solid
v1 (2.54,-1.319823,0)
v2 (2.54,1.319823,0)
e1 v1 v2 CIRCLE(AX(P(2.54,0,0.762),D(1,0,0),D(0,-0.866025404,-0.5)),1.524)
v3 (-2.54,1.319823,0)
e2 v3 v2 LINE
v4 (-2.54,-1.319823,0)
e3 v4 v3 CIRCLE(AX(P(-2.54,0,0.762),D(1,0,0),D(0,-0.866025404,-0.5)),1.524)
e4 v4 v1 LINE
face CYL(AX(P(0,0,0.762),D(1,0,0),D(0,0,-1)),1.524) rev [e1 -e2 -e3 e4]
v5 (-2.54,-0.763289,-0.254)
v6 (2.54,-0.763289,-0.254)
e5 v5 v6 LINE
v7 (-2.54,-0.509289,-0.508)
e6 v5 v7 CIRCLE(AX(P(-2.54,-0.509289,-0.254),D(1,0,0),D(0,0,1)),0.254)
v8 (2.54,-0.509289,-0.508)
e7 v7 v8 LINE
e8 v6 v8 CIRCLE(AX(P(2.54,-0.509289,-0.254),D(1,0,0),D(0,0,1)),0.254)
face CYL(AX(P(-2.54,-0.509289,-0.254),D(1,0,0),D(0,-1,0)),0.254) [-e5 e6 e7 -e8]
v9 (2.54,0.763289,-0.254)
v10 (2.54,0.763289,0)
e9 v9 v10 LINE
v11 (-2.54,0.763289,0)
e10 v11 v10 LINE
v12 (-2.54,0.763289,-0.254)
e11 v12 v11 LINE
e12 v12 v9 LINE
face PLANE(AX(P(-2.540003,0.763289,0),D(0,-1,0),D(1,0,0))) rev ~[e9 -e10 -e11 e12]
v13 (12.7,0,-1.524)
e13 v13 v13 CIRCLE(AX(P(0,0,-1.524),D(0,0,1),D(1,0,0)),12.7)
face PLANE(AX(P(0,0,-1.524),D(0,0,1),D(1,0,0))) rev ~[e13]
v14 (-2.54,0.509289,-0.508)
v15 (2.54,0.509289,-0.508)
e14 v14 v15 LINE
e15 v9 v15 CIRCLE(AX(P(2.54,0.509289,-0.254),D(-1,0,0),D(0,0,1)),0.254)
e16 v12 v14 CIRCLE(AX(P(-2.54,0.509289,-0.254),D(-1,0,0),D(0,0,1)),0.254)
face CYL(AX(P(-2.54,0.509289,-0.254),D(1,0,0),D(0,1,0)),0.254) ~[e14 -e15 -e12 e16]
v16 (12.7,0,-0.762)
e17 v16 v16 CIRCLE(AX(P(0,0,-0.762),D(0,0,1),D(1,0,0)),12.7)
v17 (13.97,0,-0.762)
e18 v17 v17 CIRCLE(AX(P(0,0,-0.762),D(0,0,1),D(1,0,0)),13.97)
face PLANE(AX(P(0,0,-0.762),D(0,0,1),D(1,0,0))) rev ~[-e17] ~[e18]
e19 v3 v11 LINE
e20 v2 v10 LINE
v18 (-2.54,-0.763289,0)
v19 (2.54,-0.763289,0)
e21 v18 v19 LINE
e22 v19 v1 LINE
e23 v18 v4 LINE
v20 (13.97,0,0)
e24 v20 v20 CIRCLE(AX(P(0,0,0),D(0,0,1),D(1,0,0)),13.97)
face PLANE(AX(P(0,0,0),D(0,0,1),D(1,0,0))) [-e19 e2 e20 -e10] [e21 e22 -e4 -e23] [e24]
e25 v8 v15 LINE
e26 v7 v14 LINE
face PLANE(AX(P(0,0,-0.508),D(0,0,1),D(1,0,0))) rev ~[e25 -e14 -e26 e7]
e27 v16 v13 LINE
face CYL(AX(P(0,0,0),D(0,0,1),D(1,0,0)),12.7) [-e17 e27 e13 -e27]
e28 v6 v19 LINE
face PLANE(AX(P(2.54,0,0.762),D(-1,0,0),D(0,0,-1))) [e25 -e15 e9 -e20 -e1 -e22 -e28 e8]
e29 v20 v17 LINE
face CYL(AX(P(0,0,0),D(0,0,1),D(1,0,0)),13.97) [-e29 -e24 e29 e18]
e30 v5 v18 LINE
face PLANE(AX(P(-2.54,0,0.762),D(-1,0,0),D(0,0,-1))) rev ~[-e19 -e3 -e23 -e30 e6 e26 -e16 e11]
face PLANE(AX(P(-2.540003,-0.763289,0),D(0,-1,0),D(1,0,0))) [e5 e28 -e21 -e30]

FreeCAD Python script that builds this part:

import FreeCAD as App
import Part
import Sketcher
Q = App.Units.Quantity


def edges_at(feature, points):
    """Names of the edges that pass closest to the given points."""
    edges = feature.Shape.Edges
    near = lambda p: min(range(len(edges)), key=lambda i: edges[i].distToShape(Part.Vertex(*p))[0])
    return sorted({f"Edge{near(p) + 1}" for p in points})

doc = App.newDocument("Part")
body = doc.addObject("PartDesign::Body", "Body")

sketch1 = body.newObject("Sketcher::SketchObject", "Sketch")
sketch1.AttachmentSupport = (doc.getObject("XY_Plane"), [""])
sketch1.MapMode = "FlatFace"
sketch1.addGeometry(Part.Circle(App.Vector(0, 0, 0), App.Vector(0, 0, 1), 12.7), False)
sketch1.addConstraint([
    Sketcher.Constraint("Coincident", 0, 3, -1, 1),
    Sketcher.Constraint("Diameter", 0, Q("1 in")),
])
pad1 = body.newObject("PartDesign::Pad", "Pad")
pad1.Profile = sketch1
pad1.Length = Q("0.06 in")
pad1.Reversed = True

sketch2 = body.newObject("Sketcher::SketchObject", "Sketch001")
sketch2.AttachmentSupport = (doc.getObject("XY_Plane"), [""])
sketch2.MapMode = "FlatFace"
sketch2.addGeometry(Part.Circle(App.Vector(0, 0, 0), App.Vector(0, 0, 1), 13.97), False)
sketch2.addConstraint([
    Sketcher.Constraint("Coincident", 0, 3, -1, 1),
    Sketcher.Constraint("Diameter", 0, Q("1.1 in")),
])
pad2 = body.newObject("PartDesign::Pad", "Pad001")
pad2.Profile = sketch2
pad2.Length = Q("0.03 in")
pad2.Reversed = True

sketch3 = body.newObject("Sketcher::SketchObject", "Sketch002")
sketch3.AttachmentSupport = (doc.getObject("XZ_Plane"), [""])
sketch3.MapMode = "FlatFace"
sketch3.addGeometry([
    Part.LineSegment(App.Vector(-2.54, 0.762, 0), App.Vector(-2.54, -0.762, 0)),
    Part.LineSegment(App.Vector(-2.54, -0.762, 0), App.Vector(2.54, -0.762, 0)),
    Part.LineSegment(App.Vector(2.54, -0.762, 0), App.Vector(2.54, 0.762, 0)),
    Part.LineSegment(App.Vector(2.54, 0.762, 0), App.Vector(-2.54, 0.762, 0)),
], False)
sketch3.addGeometry(Part.LineSegment(App.Vector(2.54, 0.762, 0), App.Vector(-2.54, 0.762, 0)), True)
sketch3.addConstraint([
    Sketcher.Constraint("Coincident", 0, 2, 1, 1),
    Sketcher.Constraint("Coincident", 1, 2, 2, 1),
    Sketcher.Constraint("Coincident", 2, 2, 3, 1),
    Sketcher.Constraint("Coincident", 3, 2, 0, 1),
    Sketcher.Constraint("Vertical", 0),
    Sketcher.Constraint("Horizontal", 1),
    Sketcher.Constraint("Vertical", 2),
    Sketcher.Constraint("Horizontal", 3),
    Sketcher.Constraint("Horizontal", 4),
    Sketcher.Constraint("Coincident", 4, 1, 2, 2),
    Sketcher.Constraint("Symmetric", 0, 2, 2, 2, -1, 1),
    Sketcher.Constraint("Vertical", 0, 2, 4, 2),
    Sketcher.Constraint("DistanceX", 1, 1, 1, 2, Q("0.2 in")),
    Sketcher.Constraint("DistanceY", 0, 2, 0, 1, Q("0.06 in")),
])
groove = body.newObject("PartDesign::Groove", "Groove")
groove.Profile = sketch3
groove.ReferenceAxis = (sketch3, ["Axis0"])
groove.Angle = 360

sketch4 = body.newObject("Sketcher::SketchObject", "Sketch003")
sketch4.AttachmentSupport = (doc.getObject("XY_Plane"), [""])
sketch4.MapMode = "FlatFace"
sketch4.addGeometry([
    Part.LineSegment(App.Vector(-2.540003, 0.763289, 0), App.Vector(-2.540003, -0.763289, 0)),
    Part.LineSegment(App.Vector(-2.540003, -0.763289, 0), App.Vector(2.540003, -0.763289, 0)),
    Part.LineSegment(App.Vector(2.540003, -0.763289, 0), App.Vector(2.540003, 0.763289, 0)),
    Part.LineSegment(App.Vector(2.540003, 0.763289, 0), App.Vector(-2.540003, 0.763289, 0)),
], False)
sketch4.addConstraint([
    Sketcher.Constraint("Coincident", 0, 2, 1, 1),
    Sketcher.Constraint("Coincident", 1, 2, 2, 1),
    Sketcher.Constraint("Coincident", 2, 2, 3, 1),
    Sketcher.Constraint("Coincident", 3, 2, 0, 1),
    Sketcher.Constraint("Vertical", 0),
    Sketcher.Constraint("Horizontal", 1),
    Sketcher.Constraint("Vertical", 2),
    Sketcher.Constraint("Horizontal", 3),
    Sketcher.Constraint("Symmetric", 0, 2, 2, 2, -1, 1),
    Sketcher.Constraint("DistanceX", 0, 2, -1, 1, Q("0.1000001 in")),
    Sketcher.Constraint("DistanceY", 0, 2, 0, 1, Q("1.526577 mm")),
])
pad3 = body.newObject("PartDesign::Pad", "Pad002")
pad3.Profile = sketch4
pad3.Length = Q("0.02 in")
pad3.Reversed = True
doc.recompute()

fillet = body.newObject("PartDesign::Fillet", "Fillet")
fillet.Base = (pad3, edges_at(pad3, [(0, 0.763, -0.508), (0, -0.763, -0.508)]))
fillet.Radius = Q("0.01 in")

doc.recompute()
